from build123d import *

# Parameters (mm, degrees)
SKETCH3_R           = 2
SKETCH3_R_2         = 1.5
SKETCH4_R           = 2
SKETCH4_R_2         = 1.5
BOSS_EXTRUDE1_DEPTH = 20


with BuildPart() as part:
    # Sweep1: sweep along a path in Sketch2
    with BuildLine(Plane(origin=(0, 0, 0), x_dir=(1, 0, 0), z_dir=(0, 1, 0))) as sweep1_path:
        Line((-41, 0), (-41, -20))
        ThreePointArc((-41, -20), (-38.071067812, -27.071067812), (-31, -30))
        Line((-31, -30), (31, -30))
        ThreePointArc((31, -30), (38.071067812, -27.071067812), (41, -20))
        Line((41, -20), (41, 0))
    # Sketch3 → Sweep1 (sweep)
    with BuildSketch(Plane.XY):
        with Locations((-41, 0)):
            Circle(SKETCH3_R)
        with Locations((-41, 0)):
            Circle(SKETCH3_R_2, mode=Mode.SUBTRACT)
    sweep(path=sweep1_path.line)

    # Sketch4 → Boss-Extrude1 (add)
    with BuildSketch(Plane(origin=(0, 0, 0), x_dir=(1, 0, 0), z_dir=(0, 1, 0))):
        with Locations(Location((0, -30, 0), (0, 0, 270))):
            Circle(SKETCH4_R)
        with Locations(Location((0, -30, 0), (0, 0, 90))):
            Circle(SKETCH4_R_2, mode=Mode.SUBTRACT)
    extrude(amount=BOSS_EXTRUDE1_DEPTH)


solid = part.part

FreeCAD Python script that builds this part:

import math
import FreeCAD as App
import Part
import Sketcher

doc = App.newDocument("Part")
body = doc.addObject("PartDesign::Body", "Body")

# Sketch on XY plane
sketch1 = body.newObject("Sketcher::SketchObject", "Sketch")
sketch1.AttachmentSupport = (doc.getObject("XY_Plane"), [""])
sketch1.MapMode = "FlatFace"
sketch1.addGeometry(Part.Circle(App.Vector(-41, 0, 0), App.Vector(0, 0, 1), 2), False)
sketch1.addGeometry(Part.Circle(App.Vector(-41, 0, 0), App.Vector(0, 0, 1), 1.5), False)
sketch1.addConstraint(Sketcher.Constraint("Coincident", 1, 3, 0, 3))
sketch1.addConstraint(Sketcher.Constraint("PointOnObject", 0, 3, -1))
sketch1.addConstraint(Sketcher.Constraint("Diameter", 0, 4.0))
sketch1.addConstraint(Sketcher.Constraint("Diameter", 1, 3.0))
sketch1.addConstraint(Sketcher.Constraint("DistanceX", 0, 3, -1, 1, 41.0))

# Sketch on XZ plane
sketch2 = body.newObject("Sketcher::SketchObject", "Sketch001")
sketch2.AttachmentSupport = (doc.getObject("XZ_Plane"), [""])
sketch2.MapMode = "FlatFace"
sketch2.addGeometry(Part.LineSegment(App.Vector(-41, 0, 0), App.Vector(-41, 20, 0)), False)
sketch2.addGeometry(Part.ArcOfCircle(Part.Circle(App.Vector(-31, 20, 0), App.Vector(0, 0, 1), 10), math.radians(90), math.radians(180)), False)
sketch2.addGeometry(Part.LineSegment(App.Vector(-31, 30, 0), App.Vector(31, 30, 0)), False)
sketch2.addGeometry(Part.ArcOfCircle(Part.Circle(App.Vector(31, 20, 0), App.Vector(0, 0, 1), 10), math.radians(0), math.radians(90)), False)
sketch2.addGeometry(Part.LineSegment(App.Vector(41, 20, 0), App.Vector(41, 0, 0)), False)
sketch2.addConstraint(Sketcher.Constraint("Tangent", 0, 2, 1, 2))
sketch2.addConstraint(Sketcher.Constraint("Tangent", 1, 1, 2, 1))
sketch2.addConstraint(Sketcher.Constraint("Tangent", 2, 2, 3, 2))
sketch2.addConstraint(Sketcher.Constraint("Tangent", 3, 1, 4, 1))
sketch2.addConstraint(Sketcher.Constraint("Vertical", 0))
sketch2.addConstraint(Sketcher.Constraint("Horizontal", 2))
sketch2.addConstraint(Sketcher.Constraint("Vertical", 4))
sketch2.addConstraint(Sketcher.Constraint("Equal", 1, 3))
sketch2.addConstraint(Sketcher.Constraint("Symmetric", 0, 1, 4, 2, -1, 1))
sketch2.addConstraint(Sketcher.Constraint("PointOnObject", 0, 1, -1))
sketch2.addConstraint(Sketcher.Constraint("Radius", 1, 10.0))
sketch2.addConstraint(Sketcher.Constraint("DistanceX", 2, 1, 2, 2, 62.0))
sketch2.addConstraint(Sketcher.Constraint("DistanceY", 0, 1, 0, 2, 20.0))
doc.recompute()

additivepipe = body.newObject("PartDesign::AdditivePipe", "AdditivePipe")
additivepipe.Profile = sketch1
additivepipe.Spine = (sketch2, ["Edge1", "Edge2", "Edge3", "Edge4", "Edge5"])

# Sketch on XZ plane
sketch3 = body.newObject("Sketcher::SketchObject", "Sketch002")
sketch3.AttachmentSupport = (doc.getObject("XZ_Plane"), [""])
sketch3.MapMode = "FlatFace"
sketch3.addGeometry(Part.Circle(App.Vector(0, 30, 0), App.Vector(0, 0, 1), 2), False)
sketch3.addGeometry(Part.Circle(App.Vector(0, 30, 0), App.Vector(0, 0, 1), 1.5), False)
sketch3.addConstraint(Sketcher.Constraint("Coincident", 1, 3, 0, 3))
sketch3.addConstraint(Sketcher.Constraint("PointOnObject", 0, 3, -2))
sketch3.addConstraint(Sketcher.Constraint("Diameter", 0, 4.0))
sketch3.addConstraint(Sketcher.Constraint("Diameter", 1, 3.0))
sketch3.addConstraint(Sketcher.Constraint("DistanceY", -1, 1, 0, 3, 30.0))
pad1 = body.newObject("PartDesign::Pad", "Pad")
pad1.Profile = sketch3
pad1.Length = 20
pad1.Reversed = True

doc.recompute()
